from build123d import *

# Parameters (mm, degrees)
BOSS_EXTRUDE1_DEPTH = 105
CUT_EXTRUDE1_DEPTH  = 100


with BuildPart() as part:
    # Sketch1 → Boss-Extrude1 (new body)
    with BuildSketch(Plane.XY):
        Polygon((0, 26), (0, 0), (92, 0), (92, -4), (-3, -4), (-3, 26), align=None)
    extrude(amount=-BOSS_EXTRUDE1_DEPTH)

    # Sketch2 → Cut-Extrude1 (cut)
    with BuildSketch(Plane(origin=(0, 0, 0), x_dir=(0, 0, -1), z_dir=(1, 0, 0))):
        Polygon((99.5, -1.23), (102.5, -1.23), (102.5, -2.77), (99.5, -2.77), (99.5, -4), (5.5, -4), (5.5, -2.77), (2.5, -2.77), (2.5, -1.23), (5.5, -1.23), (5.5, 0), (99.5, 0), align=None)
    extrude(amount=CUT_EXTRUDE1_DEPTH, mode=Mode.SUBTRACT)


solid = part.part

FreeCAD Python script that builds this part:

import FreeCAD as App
import Part
import Sketcher
from FreeCAD import Vector
Q = App.Units.Quantity


def add_polygon(sketch, points):
    """Adds a closed chain of lines whose ends are joined by coincident constraints."""
    first, n = sketch.GeometryCount, len(points)
    for a, b in zip(points, points[1:] + points[:1]):
        sketch.addGeometry(Part.LineSegment(App.Vector(*a, 0), App.Vector(*b, 0)), False)
    for i in range(n):
        sketch.addConstraint(Sketcher.Constraint("Coincident", first + i, 2, first + (i + 1) % n, 1))

doc = App.newDocument("Part")
params = doc.addObject("Spreadsheet::Sheet", "Params")
for row, (alias, value) in enumerate([
    ("sketch1_width", "3 mm"),
    ("sketch1_width2", "95 mm"),
    ("sketch1_height", "26 mm"),
    ("sketch1_height2", "30 mm"),
    ("pad1_length", "105 mm"),
    ("sketch2_height", "3 mm"),
    ("sketch2_height2", "94 mm"),
    ("sketch2_width", "1.23 mm"),
    ("pocket1_length", "100 mm"),
], start=1):
    params.set(f"A{row}", alias)
    params.set(f"B{row}", "=" + value)
    params.setAlias(f"B{row}", alias)

body = doc.addObject("PartDesign::Body", "Body")

# Sketch on XY plane
sketch1 = doc.addObject("Sketcher::SketchObject", "Sketch")
body.addObject(sketch1)
sketch1.AttachmentSupport = (doc.XY_Plane, [""])
sketch1.MapMode = "FlatFace"
add_polygon(sketch1, [(0, 0), (0, 26), (-3, 26), (-3, -4), (92, -4), (92, 0)])  # lines 0-5
sketch1.addConstraint(Sketcher.Constraint("Vertical", 0))
sketch1.addConstraint(Sketcher.Constraint("Horizontal", 1))
sketch1.addConstraint(Sketcher.Constraint("Vertical", 2))
sketch1.addConstraint(Sketcher.Constraint("Horizontal", 3))
sketch1.addConstraint(Sketcher.Constraint("Vertical", 4))
sketch1.addConstraint(Sketcher.Constraint("Horizontal", 5))
sketch1.addConstraint(Sketcher.Constraint("Coincident", 5, 2, -1, 1))
sketch1.addConstraint(Sketcher.Constraint("DistanceX", 1, 2, 1, 1, Q("3 mm")))
sketch1.addConstraint(Sketcher.Constraint("DistanceX", 3, 1, 3, 2, Q("95 mm")))
sketch1.addConstraint(Sketcher.Constraint("DistanceY", 0, 1, 0, 2, Q("26 mm")))
sketch1.addConstraint(Sketcher.Constraint("DistanceY", 2, 2, 2, 1, Q("30 mm")))
sketch1.setExpression("Constraints[13]", "Params.sketch1_width")
sketch1.setExpression("Constraints[14]", "Params.sketch1_width2")
sketch1.setExpression("Constraints[15]", "Params.sketch1_height")
sketch1.setExpression("Constraints[16]", "Params.sketch1_height2")
pad1 = doc.addObject("PartDesign::Pad", "Pad")
body.addObject(pad1)
pad1.Profile = sketch1
pad1.setExpression("Length", "Params.pad1_length")
pad1.Reversed = True

# Sketch on YZ plane
sketch2 = doc.addObject("Sketcher::SketchObject", "Sketch001")
body.addObject(sketch2)
sketch2.AttachmentSupport = (doc.YZ_Plane, [""])
sketch2.MapMode = "FlatFace"
add_polygon(sketch2, [(-1.2, -102.5), (-1.2, -99.5), (0, -99.5), (0, -5.5), (-1.2, -5.5), (-1.2, -2.5), (-2.8, -2.5), (-2.8, -5.5), (-4, -5.5), (-4, -99.5), (-2.8, -99.5), (-2.8, -102.5)])  # lines 0-11
sketch2.addConstraint(Sketcher.Constraint("Vertical", 0))
sketch2.addConstraint(Sketcher.Constraint("Horizontal", 1))
sketch2.addConstraint(Sketcher.Constraint("Vertical", 2))
sketch2.addConstraint(Sketcher.Constraint("Horizontal", 3))
sketch2.addConstraint(Sketcher.Constraint("Vertical", 4))
sketch2.addConstraint(Sketcher.Constraint("Horizontal", 5))
sketch2.addConstraint(Sketcher.Constraint("Vertical", 6))
sketch2.addConstraint(Sketcher.Constraint("Horizontal", 7))
sketch2.addConstraint(Sketcher.Constraint("Vertical", 8))
sketch2.addConstraint(Sketcher.Constraint("Horizontal", 9))
sketch2.addConstraint(Sketcher.Constraint("Vertical", 10))
sketch2.addConstraint(Sketcher.Constraint("Horizontal", 11))
sketch2.addConstraint(Sketcher.Constraint("PointOnObject", 1, 2, -2))
sketch2.addConstraint(Sketcher.Constraint("Horizontal", 3, 2, 6, 2))
sketch2.addConstraint(Sketcher.Constraint("Horizontal", 1, 2, 8, 2))
sketch2.addConstraint(Sketcher.Constraint("Vertical", 0, 2, 3, 2))
sketch2.addConstraint(Sketcher.Constraint("Vertical", 6, 2, 9, 2))
sketch2.addConstraint(Sketcher.Constraint("Equal", 3, 7))
sketch2.addConstraint(Sketcher.Constraint("Equal", 0, 4))
sketch2.addConstraint(Sketcher.Constraint("DistanceY", 0, 1, 0, 2, Q("3 mm")))
sketch2.addConstraint(Sketcher.Constraint("DistanceY", 2, 1, 2, 2, Q("94 mm")))
sketch2.addConstraint(Sketcher.Constraint("DistanceX", 7, 2, -1, 1, Q("4 mm")))
sketch2.addConstraint(Sketcher.Constraint("DistanceX", 1, 1, 1, 2, Q("1.23 mm")))
sketch2.addConstraint(Sketcher.Constraint("DistanceY", 0, 2, -1, 1, Q("99.5 mm")))
sketch2.setExpression("Constraints[31]", "Params.sketch2_height")
sketch2.setExpression("Constraints[32]", "Params.sketch2_height2")
sketch2.setExpression("Constraints[34]", "Params.sketch2_width")
pocket1 = doc.addObject("PartDesign::Pocket", "Pocket")
body.addObject(pocket1)
pocket1.Profile = sketch2
pocket1.setExpression("Length", "Params.pocket1_length")
pocket1.Reversed = True

doc.recompute()
